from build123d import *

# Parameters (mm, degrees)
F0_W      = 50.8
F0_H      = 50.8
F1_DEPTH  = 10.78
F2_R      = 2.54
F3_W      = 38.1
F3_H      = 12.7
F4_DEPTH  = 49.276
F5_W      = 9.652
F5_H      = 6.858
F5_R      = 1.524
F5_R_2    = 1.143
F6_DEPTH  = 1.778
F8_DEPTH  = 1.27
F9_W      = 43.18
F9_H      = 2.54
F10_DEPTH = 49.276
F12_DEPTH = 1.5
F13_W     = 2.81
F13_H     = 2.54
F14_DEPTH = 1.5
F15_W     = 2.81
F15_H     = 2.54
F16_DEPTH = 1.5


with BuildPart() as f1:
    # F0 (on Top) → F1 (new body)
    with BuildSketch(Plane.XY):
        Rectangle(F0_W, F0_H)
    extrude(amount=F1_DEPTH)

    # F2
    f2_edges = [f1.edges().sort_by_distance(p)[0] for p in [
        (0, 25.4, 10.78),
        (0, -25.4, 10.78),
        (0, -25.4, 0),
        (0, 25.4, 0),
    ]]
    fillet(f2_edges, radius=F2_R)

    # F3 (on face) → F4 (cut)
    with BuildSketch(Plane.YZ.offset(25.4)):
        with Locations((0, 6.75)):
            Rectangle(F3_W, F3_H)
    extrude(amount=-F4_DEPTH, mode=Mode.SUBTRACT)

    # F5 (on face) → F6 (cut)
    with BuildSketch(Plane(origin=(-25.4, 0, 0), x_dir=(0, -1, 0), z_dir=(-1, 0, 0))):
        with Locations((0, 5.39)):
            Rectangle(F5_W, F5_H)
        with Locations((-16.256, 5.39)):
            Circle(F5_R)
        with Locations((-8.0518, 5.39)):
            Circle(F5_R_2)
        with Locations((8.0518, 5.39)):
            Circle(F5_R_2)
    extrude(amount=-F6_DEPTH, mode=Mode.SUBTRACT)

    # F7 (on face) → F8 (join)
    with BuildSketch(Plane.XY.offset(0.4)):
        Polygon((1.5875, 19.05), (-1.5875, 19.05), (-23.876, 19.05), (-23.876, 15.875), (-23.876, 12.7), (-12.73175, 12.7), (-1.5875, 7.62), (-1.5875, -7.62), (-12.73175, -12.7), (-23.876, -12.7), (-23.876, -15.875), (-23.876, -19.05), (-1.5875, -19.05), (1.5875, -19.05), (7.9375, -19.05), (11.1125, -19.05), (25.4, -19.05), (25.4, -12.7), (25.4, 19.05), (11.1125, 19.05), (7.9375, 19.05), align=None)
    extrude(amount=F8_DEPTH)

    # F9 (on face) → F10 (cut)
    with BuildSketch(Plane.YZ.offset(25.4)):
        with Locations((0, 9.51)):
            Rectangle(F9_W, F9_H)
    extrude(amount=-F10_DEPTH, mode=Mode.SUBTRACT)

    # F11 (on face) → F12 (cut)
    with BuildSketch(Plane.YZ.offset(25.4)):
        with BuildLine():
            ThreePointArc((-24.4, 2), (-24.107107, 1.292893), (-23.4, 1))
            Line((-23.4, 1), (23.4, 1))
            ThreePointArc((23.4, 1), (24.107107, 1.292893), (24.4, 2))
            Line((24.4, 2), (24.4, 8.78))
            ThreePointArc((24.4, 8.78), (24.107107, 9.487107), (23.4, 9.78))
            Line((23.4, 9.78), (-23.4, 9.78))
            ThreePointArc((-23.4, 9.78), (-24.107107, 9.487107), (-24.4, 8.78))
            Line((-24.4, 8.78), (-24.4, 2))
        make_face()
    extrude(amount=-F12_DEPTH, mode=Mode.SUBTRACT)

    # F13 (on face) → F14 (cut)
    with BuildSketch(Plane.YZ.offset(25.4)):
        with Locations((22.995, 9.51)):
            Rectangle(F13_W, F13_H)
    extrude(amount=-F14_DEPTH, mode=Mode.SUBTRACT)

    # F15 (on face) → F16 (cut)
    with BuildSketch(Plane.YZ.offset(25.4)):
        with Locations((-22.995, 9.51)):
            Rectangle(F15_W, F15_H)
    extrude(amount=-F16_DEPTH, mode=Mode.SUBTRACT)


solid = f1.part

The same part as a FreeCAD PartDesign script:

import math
import FreeCAD as App
import Part
import Sketcher

V = App.Vector
Q = App.Units.Quantity


def edges_at(feature, points):
    """Names of the edges that pass closest to the given points."""
    edges = feature.Shape.Edges
    near = lambda p: min(range(len(edges)), key=lambda i: edges[i].distToShape(Part.Vertex(*p))[0])
    return sorted({f"Edge{near(p) + 1}" for p in points})

doc = App.newDocument("Part")
body = doc.addObject("PartDesign::Body", "Body")

# Sketch on XY plane
sketch1 = body.newObject("Sketcher::SketchObject", "Sketch")
sketch1.AttachmentSupport = (doc.getObject("XY_Plane"), [""])
sketch1.MapMode = "FlatFace"
sketch1.addGeometry(Part.LineSegment(V(-25.4, 25.4, 0), V(-25.4, -25.4, 0)), False)
sketch1.addGeometry(Part.LineSegment(V(-25.4, -25.4, 0), V(25.4, -25.4, 0)), False)
sketch1.addGeometry(Part.LineSegment(V(25.4, -25.4, 0), V(25.4, 25.4, 0)), False)
sketch1.addGeometry(Part.LineSegment(V(25.4, 25.4, 0), V(-25.4, 25.4, 0)), False)
sketch1.addConstraint(Sketcher.Constraint("Coincident", 0, 2, 1, 1))
sketch1.addConstraint(Sketcher.Constraint("Coincident", 1, 2, 2, 1))
sketch1.addConstraint(Sketcher.Constraint("Coincident", 2, 2, 3, 1))
sketch1.addConstraint(Sketcher.Constraint("Coincident", 3, 2, 0, 1))
sketch1.addConstraint(Sketcher.Constraint("Vertical", 0))
sketch1.addConstraint(Sketcher.Constraint("Horizontal", 1))
sketch1.addConstraint(Sketcher.Constraint("Vertical", 2))
sketch1.addConstraint(Sketcher.Constraint("Horizontal", 3))
sketch1.addConstraint(Sketcher.Constraint("Symmetric", 0, 2, 2, 2, -1, 1))
sketch1.addConstraint(Sketcher.Constraint("Equal", 3, 0))
sketch1.addConstraint(Sketcher.Constraint("DistanceX", 1, 1, 1, 2, Q("2 in")))
pad1 = body.newObject("PartDesign::Pad", "Pad")
pad1.Profile = sketch1
pad1.Length = 10.78
doc.recompute()

fillet = body.newObject("PartDesign::Fillet", "Fillet")
fillet.Base = (pad1, edges_at(pad1, [
    (0, 25.4, 10.78),
    (0, -25.4, 10.78),
    (0, -25.4, 0),
    (0, 25.4, 0),
]))
fillet.Radius = Q("0.1 in")

# Sketch on YZ plane
sketch2 = body.newObject("Sketcher::SketchObject", "Sketch001")
sketch2.AttachmentSupport = (doc.getObject("YZ_Plane"), [""])
sketch2.MapMode = "FlatFace"
sketch2.AttachmentOffset = App.Placement(V(0, 0, 1 * 25.4), App.Rotation())
sketch2.addGeometry(Part.LineSegment(V(-19.05, 13.1, 0), V(-19.05, 0.4, 0)), False)
sketch2.addGeometry(Part.LineSegment(V(-19.05, 0.4, 0), V(19.05, 0.4, 0)), False)
sketch2.addGeometry(Part.LineSegment(V(19.05, 0.4, 0), V(19.05, 13.1, 0)), False)
sketch2.addGeometry(Part.LineSegment(V(19.05, 13.1, 0), V(-19.05, 13.1, 0)), False)
sketch2.addConstraint(Sketcher.Constraint("Coincident", 0, 2, 1, 1))
sketch2.addConstraint(Sketcher.Constraint("Coincident", 1, 2, 2, 1))
sketch2.addConstraint(Sketcher.Constraint("Coincident", 2, 2, 3, 1))
sketch2.addConstraint(Sketcher.Constraint("Coincident", 3, 2, 0, 1))
sketch2.addConstraint(Sketcher.Constraint("Vertical", 0))
sketch2.addConstraint(Sketcher.Constraint("Horizontal", 1))
sketch2.addConstraint(Sketcher.Constraint("Vertical", 2))
sketch2.addConstraint(Sketcher.Constraint("Horizontal", 3))
sketch2.addConstraint(Sketcher.Constraint("DistanceX", 1, 1, 1, 2, Q("1.5 in")))
sketch2.addConstraint(Sketcher.Constraint("DistanceY", 0, 2, 0, 1, Q("0.5 in")))
sketch2.addConstraint(Sketcher.Constraint("DistanceX", 0, 2, -1, 1, Q("0.75 in")))
sketch2.addConstraint(Sketcher.Constraint("DistanceY", -1, 1, 0, 2, 0.4))
pocket1 = body.newObject("PartDesign::Pocket", "Pocket")
pocket1.Profile = sketch2
pocket1.Length = Q("1.94 in")

# Sketch on YZ plane
sketch3 = body.newObject("Sketcher::SketchObject", "Sketch002")
sketch3.AttachmentSupport = (doc.getObject("YZ_Plane"), [""])
sketch3.MapMode = "FlatFace"
sketch3.AttachmentOffset = App.Placement(V(0, 0, -1 * 25.4), App.Rotation())
sketch3.addGeometry(Part.LineSegment(V(4.826, 8.819, 0), V(4.826, 1.961, 0)), False)
sketch3.addGeometry(Part.LineSegment(V(4.826, 1.961, 0), V(-4.826, 1.961, 0)), False)
sketch3.addGeometry(Part.LineSegment(V(-4.826, 1.961, 0), V(-4.826, 8.819, 0)), False)
sketch3.addGeometry(Part.LineSegment(V(-4.826, 8.819, 0), V(4.826, 8.819, 0)), False)
sketch3.addGeometry(Part.Circle(V(16.256, 5.39, 0), V(0, 0, 1), 1.524), False)
sketch3.addGeometry(Part.Circle(V(8.0518, 5.39, 0), V(0, 0, 1), 1.143), False)
sketch3.addGeometry(Part.Circle(V(-8.0518, 5.39, 0), V(0, 0, 1), 1.143), False)
sketch3.addConstraint(Sketcher.Constraint("Coincident", 0, 2, 1, 1))
sketch3.addConstraint(Sketcher.Constraint("Coincident", 1, 2, 2, 1))
sketch3.addConstraint(Sketcher.Constraint("Coincident", 2, 2, 3, 1))
sketch3.addConstraint(Sketcher.Constraint("Coincident", 3, 2, 0, 1))
sketch3.addConstraint(Sketcher.Constraint("Vertical", 0))
sketch3.addConstraint(Sketcher.Constraint("Horizontal", 1))
sketch3.addConstraint(Sketcher.Constraint("Vertical", 2))
sketch3.addConstraint(Sketcher.Constraint("Horizontal", 3))
sketch3.addConstraint(Sketcher.Constraint("Equal", 5, 6))
sketch3.addConstraint(Sketcher.Constraint("Symmetric", 5, 3, 6, 3, -2))
sketch3.addConstraint(Sketcher.Constraint("Horizontal", 4, 3, 5, 3))
sketch3.addConstraint(Sketcher.Constraint("Diameter", 4, Q("0.12 in")))
sketch3.addConstraint(Sketcher.Constraint("Diameter", 5, Q("0.09 in")))
sketch3.addConstraint(Sketcher.Constraint("DistanceX", 1, 2, 1, 1, Q("0.38 in")))
sketch3.addConstraint(Sketcher.Constraint("DistanceY", 0, 2, 0, 1, Q("0.27 in")))
sketch3.addConstraint(Sketcher.Constraint("DistanceX", -1, 1, 4, 3, Q("0.64 in")))
sketch3.addConstraint(Sketcher.Constraint("DistanceX", -1, 1, 0, 2, Q("0.19 in")))
sketch3.addConstraint(Sketcher.Constraint("DistanceX", -1, 1, 5, 3, Q("0.317 in")))
sketch3.addConstraint(Sketcher.Constraint("DistanceY", 0, 2, 5, 3, Q("0.135 in")))
sketch3.addConstraint(Sketcher.Constraint("DistanceY", -1, 1, 4, 3, 5.39))
pocket2 = body.newObject("PartDesign::Pocket", "Pocket001")
pocket2.Profile = sketch3
pocket2.Length = Q("0.07 in")
pocket2.Reversed = True

# Sketch on XY plane
sketch4 = body.newObject("Sketcher::SketchObject", "Sketch003")
sketch4.AttachmentSupport = (doc.getObject("XY_Plane"), [""])
sketch4.MapMode = "FlatFace"
sketch4.AttachmentOffset = App.Placement(V(0, 0, 0.4), App.Rotation())
sketch4.addGeometry(Part.LineSegment(V(-23.876, 19.05, 0), V(-23.876, 12.7, 0)), False)
sketch4.addGeometry(Part.LineSegment(V(-23.876, 12.7, 0), V(-12.73175, 12.7, 0)), False)
sketch4.addGeometry(Part.LineSegment(V(-12.73175, 12.7, 0), V(-1.5875, 7.62, 0)), False)
sketch4.addGeometry(Part.LineSegment(V(-1.5875, 7.62, 0), V(-1.5875, -7.62, 0)), False)
sketch4.addGeometry(Part.LineSegment(V(-1.5875, -7.62, 0), V(-12.73175, -12.7, 0)), False)
sketch4.addGeometry(Part.LineSegment(V(-12.73175, -12.7, 0), V(-23.876, -12.7, 0)), False)
sketch4.addGeometry(Part.LineSegment(V(-23.876, -12.7, 0), V(-23.876, -19.05, 0)), False)
sketch4.addGeometry(Part.LineSegment(V(-23.876, -19.05, 0), V(25.4, -19.05, 0)), False)
sketch4.addGeometry(Part.LineSegment(V(25.4, -19.05, 0), V(25.4, 19.05, 0)), False)
sketch4.addGeometry(Part.LineSegment(V(25.4, 19.05, 0), V(-23.876, 19.05, 0)), False)
sketch4.addConstraint(Sketcher.Constraint("Coincident", 0, 2, 1, 1))
sketch4.addConstraint(Sketcher.Constraint("Coincident", 1, 2, 2, 1))
sketch4.addConstraint(Sketcher.Constraint("Coincident", 2, 2, 3, 1))
sketch4.addConstraint(Sketcher.Constraint("Coincident", 3, 2, 4, 1))
sketch4.addConstraint(Sketcher.Constraint("Coincident", 4, 2, 5, 1))
sketch4.addConstraint(Sketcher.Constraint("Coincident", 5, 2, 6, 1))
sketch4.addConstraint(Sketcher.Constraint("Coincident", 6, 2, 7, 1))
sketch4.addConstraint(Sketcher.Constraint("Coincident", 7, 2, 8, 1))
sketch4.addConstraint(Sketcher.Constraint("Coincident", 8, 2, 9, 1))
sketch4.addConstraint(Sketcher.Constraint("Coincident", 9, 2, 0, 1))
sketch4.addConstraint(Sketcher.Constraint("Vertical", 0))
sketch4.addConstraint(Sketcher.Constraint("Horizontal", 1))
sketch4.addConstraint(Sketcher.Constraint("Vertical", 3))
sketch4.addConstraint(Sketcher.Constraint("Horizontal", 5))
sketch4.addConstraint(Sketcher.Constraint("Vertical", 6))
sketch4.addConstraint(Sketcher.Constraint("Horizontal", 7))
sketch4.addConstraint(Sketcher.Constraint("Vertical", 8))
sketch4.addConstraint(Sketcher.Constraint("Horizontal", 9))
sketch4.addConstraint(Sketcher.Constraint("Symmetric", 1, 2, 4, 2, -1))
sketch4.addConstraint(Sketcher.Constraint("Symmetric", 6, 2, 9, 2, -1))
sketch4.addConstraint(Sketcher.Constraint("Equal", 2, 4))
sketch4.addConstraint(Sketcher.Constraint("DistanceY", 3, 2, 3, 1, Q("0.6 in")))
sketch4.addConstraint(Sketcher.Constraint("DistanceY", 8, 1, 8, 2, Q("1.5 in")))
sketch4.addConstraint(Sketcher.Constraint("DistanceX", -1, 1, 7, 2, Q("1 in")))
sketch4.addConstraint(Sketcher.Constraint("DistanceY", 4, 2, 1, 2, Q("1 in")))
sketch4.addConstraint(Sketcher.Constraint("DistanceX", 7, 1, 7, 2, Q("1.94 in")))
sketch4.addConstraint(Sketcher.Constraint("DistanceX", 2, 2, -1, 1, Q("0.0625 in")))
sketch4.addConstraint(Sketcher.Constraint("DistanceX", 1, 1, 1, 2, 11.14425))
pad2 = body.newObject("PartDesign::Pad", "Pad001")
pad2.Profile = sketch4
pad2.Length = Q("0.05 in")

# Sketch on YZ plane
sketch5 = body.newObject("Sketcher::SketchObject", "Sketch004")
sketch5.AttachmentSupport = (doc.getObject("YZ_Plane"), [""])
sketch5.MapMode = "FlatFace"
sketch5.AttachmentOffset = App.Placement(V(0, 0, 1 * 25.4), App.Rotation())
sketch5.addGeometry(Part.LineSegment(V(-21.59, 10.78, 0), V(-21.59, 8.24, 0)), False)
sketch5.addGeometry(Part.LineSegment(V(-21.59, 8.24, 0), V(21.59, 8.24, 0)), False)
sketch5.addGeometry(Part.LineSegment(V(21.59, 8.24, 0), V(21.59, 10.78, 0)), False)
sketch5.addGeometry(Part.LineSegment(V(21.59, 10.78, 0), V(-21.59, 10.78, 0)), False)
sketch5.addConstraint(Sketcher.Constraint("Coincident", 0, 2, 1, 1))
sketch5.addConstraint(Sketcher.Constraint("Coincident", 1, 2, 2, 1))
sketch5.addConstraint(Sketcher.Constraint("Coincident", 2, 2, 3, 1))
sketch5.addConstraint(Sketcher.Constraint("Coincident", 3, 2, 0, 1))
sketch5.addConstraint(Sketcher.Constraint("Vertical", 0))
sketch5.addConstraint(Sketcher.Constraint("Horizontal", 1))
sketch5.addConstraint(Sketcher.Constraint("Vertical", 2))
sketch5.addConstraint(Sketcher.Constraint("Horizontal", 3))
sketch5.addConstraint(Sketcher.Constraint("DistanceX", 1, 1, 1, 2, Q("1.7 in")))
sketch5.addConstraint(Sketcher.Constraint("DistanceY", 0, 2, 0, 1, Q("0.1 in")))
sketch5.addConstraint(Sketcher.Constraint("DistanceX", 0, 2, -1, 1, Q("0.85 in")))
sketch5.addConstraint(Sketcher.Constraint("DistanceY", -1, 1, 0, 2, 8.24))
pocket3 = body.newObject("PartDesign::Pocket", "Pocket002")
pocket3.Profile = sketch5
pocket3.Length = Q("1.94 in")

# Sketch on YZ plane
sketch6 = body.newObject("Sketcher::SketchObject", "Sketch005")
sketch6.AttachmentSupport = (doc.getObject("YZ_Plane"), [""])
sketch6.MapMode = "FlatFace"
sketch6.AttachmentOffset = App.Placement(V(0, 0, 1 * 25.4), App.Rotation())
sketch6.addGeometry(Part.ArcOfCircle(Part.Circle(V(-23.400001, 1.999999, 0), V(0, 0, 1), 0.999999), math.radians(179.999957), math.radians(270.000043)), False)
sketch6.addGeometry(Part.LineSegment(V(-23.4, 1, 0), V(23.4, 1, 0)), False)
sketch6.addGeometry(Part.ArcOfCircle(Part.Circle(V(23.400001, 1.999999, 0), V(0, 0, 1), 0.999999), math.radians(-90.000043), math.radians(0.000043)), False)
sketch6.addGeometry(Part.LineSegment(V(24.4, 2, 0), V(24.4, 8.78, 0)), False)
sketch6.addGeometry(Part.ArcOfCircle(Part.Circle(V(23.400001, 8.780001, 0), V(0, 0, 1), 0.999999), math.radians(-0.000043), math.radians(90.000043)), False)
sketch6.addGeometry(Part.LineSegment(V(23.4, 9.78, 0), V(-23.4, 9.78, 0)), False)
sketch6.addGeometry(Part.ArcOfCircle(Part.Circle(V(-23.400001, 8.780001, 0), V(0, 0, 1), 0.999999), math.radians(89.999957), math.radians(180.000043)), False)
sketch6.addGeometry(Part.LineSegment(V(-24.4, 8.78, 0), V(-24.4, 2, 0)), False)
sketch6.addConstraint(Sketcher.Constraint("Tangent", 0, 2, 1, 1))
sketch6.addConstraint(Sketcher.Constraint("Tangent", 1, 2, 2, 1))
sketch6.addConstraint(Sketcher.Constraint("Tangent", 2, 2, 3, 1))
sketch6.addConstraint(Sketcher.Constraint("Tangent", 3, 2, 4, 1))
sketch6.addConstraint(Sketcher.Constraint("Tangent", 4, 2, 5, 1))
sketch6.addConstraint(Sketcher.Constraint("Tangent", 5, 2, 6, 1))
sketch6.addConstraint(Sketcher.Constraint("Tangent", 6, 2, 7, 1))
sketch6.addConstraint(Sketcher.Constraint("Tangent", 7, 2, 0, 1))
sketch6.addConstraint(Sketcher.Constraint("Horizontal", 1))
sketch6.addConstraint(Sketcher.Constraint("Vertical", 3))
sketch6.addConstraint(Sketcher.Constraint("Horizontal", 5))
sketch6.addConstraint(Sketcher.Constraint("Vertical", 7))
sketch6.addConstraint(Sketcher.Constraint("Equal", 0, 2))
sketch6.addConstraint(Sketcher.Constraint("Equal", 2, 4))
sketch6.addConstraint(Sketcher.Constraint("Equal", 4, 6))
sketch6.addConstraint(Sketcher.Constraint("Radius", 0, 0.999999))
sketch6.addConstraint(Sketcher.Constraint("DistanceX", 1, 1, 1, 2, 46.8))
sketch6.addConstraint(Sketcher.Constraint("DistanceY", 3, 1, 3, 2, 6.78))
sketch6.addConstraint(Sketcher.Constraint("DistanceX", 0, 3, -1, 1, 23.400001))
sketch6.addConstraint(Sketcher.Constraint("DistanceY", -1, 1, 0, 3, 1.999999))
pocket4 = body.newObject("PartDesign::Pocket", "Pocket003")
pocket4.Profile = sketch6
pocket4.Length = 1.5

# Sketch on YZ plane
sketch7 = body.newObject("Sketcher::SketchObject", "Sketch006")
sketch7.AttachmentSupport = (doc.getObject("YZ_Plane"), [""])
sketch7.MapMode = "FlatFace"
sketch7.AttachmentOffset = App.Placement(V(0, 0, 1 * 25.4), App.Rotation())
sketch7.addGeometry(Part.LineSegment(V(21.59, 10.78, 0), V(21.59, 8.24, 0)), False)
sketch7.addGeometry(Part.LineSegment(V(21.59, 8.24, 0), V(24.4, 8.24, 0)), False)
sketch7.addGeometry(Part.LineSegment(V(24.4, 8.24, 0), V(24.4, 10.78, 0)), False)
sketch7.addGeometry(Part.LineSegment(V(24.4, 10.78, 0), V(21.59, 10.78, 0)), False)
sketch7.addConstraint(Sketcher.Constraint("Coincident", 0, 2, 1, 1))
sketch7.addConstraint(Sketcher.Constraint("Coincident", 1, 2, 2, 1))
sketch7.addConstraint(Sketcher.Constraint("Coincident", 2, 2, 3, 1))
sketch7.addConstraint(Sketcher.Constraint("Coincident", 3, 2, 0, 1))
sketch7.addConstraint(Sketcher.Constraint("Vertical", 0))
sketch7.addConstraint(Sketcher.Constraint("Horizontal", 1))
sketch7.addConstraint(Sketcher.Constraint("Vertical", 2))
sketch7.addConstraint(Sketcher.Constraint("Horizontal", 3))
sketch7.addConstraint(Sketcher.Constraint("DistanceY", 0, 2, 0, 1, Q("0.1 in")))
sketch7.addConstraint(Sketcher.Constraint("DistanceX", -1, 1, 0, 2, Q("0.85 in")))
sketch7.addConstraint(Sketcher.Constraint("DistanceX", 1, 1, 1, 2, 2.81))
sketch7.addConstraint(Sketcher.Constraint("DistanceY", -1, 1, 0, 2, 8.24))
pocket5 = body.newObject("PartDesign::Pocket", "Pocket004")
pocket5.Profile = sketch7
pocket5.Length = 1.5

# Sketch on YZ plane
sketch8 = body.newObject("Sketcher::SketchObject", "Sketch007")
sketch8.AttachmentSupport = (doc.getObject("YZ_Plane"), [""])
sketch8.MapMode = "FlatFace"
sketch8.AttachmentOffset = App.Placement(V(0, 0, 1 * 25.4), App.Rotation())
sketch8.addGeometry(Part.LineSegment(V(-24.4, 10.78, 0), V(-24.4, 8.24, 0)), False)
sketch8.addGeometry(Part.LineSegment(V(-24.4, 8.24, 0), V(-21.59, 8.24, 0)), False)
sketch8.addGeometry(Part.LineSegment(V(-21.59, 8.24, 0), V(-21.59, 10.78, 0)), False)
sketch8.addGeometry(Part.LineSegment(V(-21.59, 10.78, 0), V(-24.4, 10.78, 0)), False)
sketch8.addConstraint(Sketcher.Constraint("Coincident", 0, 2, 1, 1))
sketch8.addConstraint(Sketcher.Constraint("Coincident", 1, 2, 2, 1))
sketch8.addConstraint(Sketcher.Constraint("Coincident", 2, 2, 3, 1))
sketch8.addConstraint(Sketcher.Constraint("Coincident", 3, 2, 0, 1))
sketch8.addConstraint(Sketcher.Constraint("Vertical", 0))
sketch8.addConstraint(Sketcher.Constraint("Horizontal", 1))
sketch8.addConstraint(Sketcher.Constraint("Vertical", 2))
sketch8.addConstraint(Sketcher.Constraint("Horizontal", 3))
sketch8.addConstraint(Sketcher.Constraint("DistanceY", 0, 2, 0, 1, Q("0.1 in")))
sketch8.addConstraint(Sketcher.Constraint("DistanceX", 1, 2, -1, 1, Q("0.85 in")))
sketch8.addConstraint(Sketcher.Constraint("DistanceX", 1, 1, 1, 2, 2.81))
sketch8.addConstraint(Sketcher.Constraint("DistanceY", -1, 1, 0, 2, 8.24))
pocket6 = body.newObject("PartDesign::Pocket", "Pocket005")
pocket6.Profile = sketch8
pocket6.Length = 1.5

doc.recompute()
